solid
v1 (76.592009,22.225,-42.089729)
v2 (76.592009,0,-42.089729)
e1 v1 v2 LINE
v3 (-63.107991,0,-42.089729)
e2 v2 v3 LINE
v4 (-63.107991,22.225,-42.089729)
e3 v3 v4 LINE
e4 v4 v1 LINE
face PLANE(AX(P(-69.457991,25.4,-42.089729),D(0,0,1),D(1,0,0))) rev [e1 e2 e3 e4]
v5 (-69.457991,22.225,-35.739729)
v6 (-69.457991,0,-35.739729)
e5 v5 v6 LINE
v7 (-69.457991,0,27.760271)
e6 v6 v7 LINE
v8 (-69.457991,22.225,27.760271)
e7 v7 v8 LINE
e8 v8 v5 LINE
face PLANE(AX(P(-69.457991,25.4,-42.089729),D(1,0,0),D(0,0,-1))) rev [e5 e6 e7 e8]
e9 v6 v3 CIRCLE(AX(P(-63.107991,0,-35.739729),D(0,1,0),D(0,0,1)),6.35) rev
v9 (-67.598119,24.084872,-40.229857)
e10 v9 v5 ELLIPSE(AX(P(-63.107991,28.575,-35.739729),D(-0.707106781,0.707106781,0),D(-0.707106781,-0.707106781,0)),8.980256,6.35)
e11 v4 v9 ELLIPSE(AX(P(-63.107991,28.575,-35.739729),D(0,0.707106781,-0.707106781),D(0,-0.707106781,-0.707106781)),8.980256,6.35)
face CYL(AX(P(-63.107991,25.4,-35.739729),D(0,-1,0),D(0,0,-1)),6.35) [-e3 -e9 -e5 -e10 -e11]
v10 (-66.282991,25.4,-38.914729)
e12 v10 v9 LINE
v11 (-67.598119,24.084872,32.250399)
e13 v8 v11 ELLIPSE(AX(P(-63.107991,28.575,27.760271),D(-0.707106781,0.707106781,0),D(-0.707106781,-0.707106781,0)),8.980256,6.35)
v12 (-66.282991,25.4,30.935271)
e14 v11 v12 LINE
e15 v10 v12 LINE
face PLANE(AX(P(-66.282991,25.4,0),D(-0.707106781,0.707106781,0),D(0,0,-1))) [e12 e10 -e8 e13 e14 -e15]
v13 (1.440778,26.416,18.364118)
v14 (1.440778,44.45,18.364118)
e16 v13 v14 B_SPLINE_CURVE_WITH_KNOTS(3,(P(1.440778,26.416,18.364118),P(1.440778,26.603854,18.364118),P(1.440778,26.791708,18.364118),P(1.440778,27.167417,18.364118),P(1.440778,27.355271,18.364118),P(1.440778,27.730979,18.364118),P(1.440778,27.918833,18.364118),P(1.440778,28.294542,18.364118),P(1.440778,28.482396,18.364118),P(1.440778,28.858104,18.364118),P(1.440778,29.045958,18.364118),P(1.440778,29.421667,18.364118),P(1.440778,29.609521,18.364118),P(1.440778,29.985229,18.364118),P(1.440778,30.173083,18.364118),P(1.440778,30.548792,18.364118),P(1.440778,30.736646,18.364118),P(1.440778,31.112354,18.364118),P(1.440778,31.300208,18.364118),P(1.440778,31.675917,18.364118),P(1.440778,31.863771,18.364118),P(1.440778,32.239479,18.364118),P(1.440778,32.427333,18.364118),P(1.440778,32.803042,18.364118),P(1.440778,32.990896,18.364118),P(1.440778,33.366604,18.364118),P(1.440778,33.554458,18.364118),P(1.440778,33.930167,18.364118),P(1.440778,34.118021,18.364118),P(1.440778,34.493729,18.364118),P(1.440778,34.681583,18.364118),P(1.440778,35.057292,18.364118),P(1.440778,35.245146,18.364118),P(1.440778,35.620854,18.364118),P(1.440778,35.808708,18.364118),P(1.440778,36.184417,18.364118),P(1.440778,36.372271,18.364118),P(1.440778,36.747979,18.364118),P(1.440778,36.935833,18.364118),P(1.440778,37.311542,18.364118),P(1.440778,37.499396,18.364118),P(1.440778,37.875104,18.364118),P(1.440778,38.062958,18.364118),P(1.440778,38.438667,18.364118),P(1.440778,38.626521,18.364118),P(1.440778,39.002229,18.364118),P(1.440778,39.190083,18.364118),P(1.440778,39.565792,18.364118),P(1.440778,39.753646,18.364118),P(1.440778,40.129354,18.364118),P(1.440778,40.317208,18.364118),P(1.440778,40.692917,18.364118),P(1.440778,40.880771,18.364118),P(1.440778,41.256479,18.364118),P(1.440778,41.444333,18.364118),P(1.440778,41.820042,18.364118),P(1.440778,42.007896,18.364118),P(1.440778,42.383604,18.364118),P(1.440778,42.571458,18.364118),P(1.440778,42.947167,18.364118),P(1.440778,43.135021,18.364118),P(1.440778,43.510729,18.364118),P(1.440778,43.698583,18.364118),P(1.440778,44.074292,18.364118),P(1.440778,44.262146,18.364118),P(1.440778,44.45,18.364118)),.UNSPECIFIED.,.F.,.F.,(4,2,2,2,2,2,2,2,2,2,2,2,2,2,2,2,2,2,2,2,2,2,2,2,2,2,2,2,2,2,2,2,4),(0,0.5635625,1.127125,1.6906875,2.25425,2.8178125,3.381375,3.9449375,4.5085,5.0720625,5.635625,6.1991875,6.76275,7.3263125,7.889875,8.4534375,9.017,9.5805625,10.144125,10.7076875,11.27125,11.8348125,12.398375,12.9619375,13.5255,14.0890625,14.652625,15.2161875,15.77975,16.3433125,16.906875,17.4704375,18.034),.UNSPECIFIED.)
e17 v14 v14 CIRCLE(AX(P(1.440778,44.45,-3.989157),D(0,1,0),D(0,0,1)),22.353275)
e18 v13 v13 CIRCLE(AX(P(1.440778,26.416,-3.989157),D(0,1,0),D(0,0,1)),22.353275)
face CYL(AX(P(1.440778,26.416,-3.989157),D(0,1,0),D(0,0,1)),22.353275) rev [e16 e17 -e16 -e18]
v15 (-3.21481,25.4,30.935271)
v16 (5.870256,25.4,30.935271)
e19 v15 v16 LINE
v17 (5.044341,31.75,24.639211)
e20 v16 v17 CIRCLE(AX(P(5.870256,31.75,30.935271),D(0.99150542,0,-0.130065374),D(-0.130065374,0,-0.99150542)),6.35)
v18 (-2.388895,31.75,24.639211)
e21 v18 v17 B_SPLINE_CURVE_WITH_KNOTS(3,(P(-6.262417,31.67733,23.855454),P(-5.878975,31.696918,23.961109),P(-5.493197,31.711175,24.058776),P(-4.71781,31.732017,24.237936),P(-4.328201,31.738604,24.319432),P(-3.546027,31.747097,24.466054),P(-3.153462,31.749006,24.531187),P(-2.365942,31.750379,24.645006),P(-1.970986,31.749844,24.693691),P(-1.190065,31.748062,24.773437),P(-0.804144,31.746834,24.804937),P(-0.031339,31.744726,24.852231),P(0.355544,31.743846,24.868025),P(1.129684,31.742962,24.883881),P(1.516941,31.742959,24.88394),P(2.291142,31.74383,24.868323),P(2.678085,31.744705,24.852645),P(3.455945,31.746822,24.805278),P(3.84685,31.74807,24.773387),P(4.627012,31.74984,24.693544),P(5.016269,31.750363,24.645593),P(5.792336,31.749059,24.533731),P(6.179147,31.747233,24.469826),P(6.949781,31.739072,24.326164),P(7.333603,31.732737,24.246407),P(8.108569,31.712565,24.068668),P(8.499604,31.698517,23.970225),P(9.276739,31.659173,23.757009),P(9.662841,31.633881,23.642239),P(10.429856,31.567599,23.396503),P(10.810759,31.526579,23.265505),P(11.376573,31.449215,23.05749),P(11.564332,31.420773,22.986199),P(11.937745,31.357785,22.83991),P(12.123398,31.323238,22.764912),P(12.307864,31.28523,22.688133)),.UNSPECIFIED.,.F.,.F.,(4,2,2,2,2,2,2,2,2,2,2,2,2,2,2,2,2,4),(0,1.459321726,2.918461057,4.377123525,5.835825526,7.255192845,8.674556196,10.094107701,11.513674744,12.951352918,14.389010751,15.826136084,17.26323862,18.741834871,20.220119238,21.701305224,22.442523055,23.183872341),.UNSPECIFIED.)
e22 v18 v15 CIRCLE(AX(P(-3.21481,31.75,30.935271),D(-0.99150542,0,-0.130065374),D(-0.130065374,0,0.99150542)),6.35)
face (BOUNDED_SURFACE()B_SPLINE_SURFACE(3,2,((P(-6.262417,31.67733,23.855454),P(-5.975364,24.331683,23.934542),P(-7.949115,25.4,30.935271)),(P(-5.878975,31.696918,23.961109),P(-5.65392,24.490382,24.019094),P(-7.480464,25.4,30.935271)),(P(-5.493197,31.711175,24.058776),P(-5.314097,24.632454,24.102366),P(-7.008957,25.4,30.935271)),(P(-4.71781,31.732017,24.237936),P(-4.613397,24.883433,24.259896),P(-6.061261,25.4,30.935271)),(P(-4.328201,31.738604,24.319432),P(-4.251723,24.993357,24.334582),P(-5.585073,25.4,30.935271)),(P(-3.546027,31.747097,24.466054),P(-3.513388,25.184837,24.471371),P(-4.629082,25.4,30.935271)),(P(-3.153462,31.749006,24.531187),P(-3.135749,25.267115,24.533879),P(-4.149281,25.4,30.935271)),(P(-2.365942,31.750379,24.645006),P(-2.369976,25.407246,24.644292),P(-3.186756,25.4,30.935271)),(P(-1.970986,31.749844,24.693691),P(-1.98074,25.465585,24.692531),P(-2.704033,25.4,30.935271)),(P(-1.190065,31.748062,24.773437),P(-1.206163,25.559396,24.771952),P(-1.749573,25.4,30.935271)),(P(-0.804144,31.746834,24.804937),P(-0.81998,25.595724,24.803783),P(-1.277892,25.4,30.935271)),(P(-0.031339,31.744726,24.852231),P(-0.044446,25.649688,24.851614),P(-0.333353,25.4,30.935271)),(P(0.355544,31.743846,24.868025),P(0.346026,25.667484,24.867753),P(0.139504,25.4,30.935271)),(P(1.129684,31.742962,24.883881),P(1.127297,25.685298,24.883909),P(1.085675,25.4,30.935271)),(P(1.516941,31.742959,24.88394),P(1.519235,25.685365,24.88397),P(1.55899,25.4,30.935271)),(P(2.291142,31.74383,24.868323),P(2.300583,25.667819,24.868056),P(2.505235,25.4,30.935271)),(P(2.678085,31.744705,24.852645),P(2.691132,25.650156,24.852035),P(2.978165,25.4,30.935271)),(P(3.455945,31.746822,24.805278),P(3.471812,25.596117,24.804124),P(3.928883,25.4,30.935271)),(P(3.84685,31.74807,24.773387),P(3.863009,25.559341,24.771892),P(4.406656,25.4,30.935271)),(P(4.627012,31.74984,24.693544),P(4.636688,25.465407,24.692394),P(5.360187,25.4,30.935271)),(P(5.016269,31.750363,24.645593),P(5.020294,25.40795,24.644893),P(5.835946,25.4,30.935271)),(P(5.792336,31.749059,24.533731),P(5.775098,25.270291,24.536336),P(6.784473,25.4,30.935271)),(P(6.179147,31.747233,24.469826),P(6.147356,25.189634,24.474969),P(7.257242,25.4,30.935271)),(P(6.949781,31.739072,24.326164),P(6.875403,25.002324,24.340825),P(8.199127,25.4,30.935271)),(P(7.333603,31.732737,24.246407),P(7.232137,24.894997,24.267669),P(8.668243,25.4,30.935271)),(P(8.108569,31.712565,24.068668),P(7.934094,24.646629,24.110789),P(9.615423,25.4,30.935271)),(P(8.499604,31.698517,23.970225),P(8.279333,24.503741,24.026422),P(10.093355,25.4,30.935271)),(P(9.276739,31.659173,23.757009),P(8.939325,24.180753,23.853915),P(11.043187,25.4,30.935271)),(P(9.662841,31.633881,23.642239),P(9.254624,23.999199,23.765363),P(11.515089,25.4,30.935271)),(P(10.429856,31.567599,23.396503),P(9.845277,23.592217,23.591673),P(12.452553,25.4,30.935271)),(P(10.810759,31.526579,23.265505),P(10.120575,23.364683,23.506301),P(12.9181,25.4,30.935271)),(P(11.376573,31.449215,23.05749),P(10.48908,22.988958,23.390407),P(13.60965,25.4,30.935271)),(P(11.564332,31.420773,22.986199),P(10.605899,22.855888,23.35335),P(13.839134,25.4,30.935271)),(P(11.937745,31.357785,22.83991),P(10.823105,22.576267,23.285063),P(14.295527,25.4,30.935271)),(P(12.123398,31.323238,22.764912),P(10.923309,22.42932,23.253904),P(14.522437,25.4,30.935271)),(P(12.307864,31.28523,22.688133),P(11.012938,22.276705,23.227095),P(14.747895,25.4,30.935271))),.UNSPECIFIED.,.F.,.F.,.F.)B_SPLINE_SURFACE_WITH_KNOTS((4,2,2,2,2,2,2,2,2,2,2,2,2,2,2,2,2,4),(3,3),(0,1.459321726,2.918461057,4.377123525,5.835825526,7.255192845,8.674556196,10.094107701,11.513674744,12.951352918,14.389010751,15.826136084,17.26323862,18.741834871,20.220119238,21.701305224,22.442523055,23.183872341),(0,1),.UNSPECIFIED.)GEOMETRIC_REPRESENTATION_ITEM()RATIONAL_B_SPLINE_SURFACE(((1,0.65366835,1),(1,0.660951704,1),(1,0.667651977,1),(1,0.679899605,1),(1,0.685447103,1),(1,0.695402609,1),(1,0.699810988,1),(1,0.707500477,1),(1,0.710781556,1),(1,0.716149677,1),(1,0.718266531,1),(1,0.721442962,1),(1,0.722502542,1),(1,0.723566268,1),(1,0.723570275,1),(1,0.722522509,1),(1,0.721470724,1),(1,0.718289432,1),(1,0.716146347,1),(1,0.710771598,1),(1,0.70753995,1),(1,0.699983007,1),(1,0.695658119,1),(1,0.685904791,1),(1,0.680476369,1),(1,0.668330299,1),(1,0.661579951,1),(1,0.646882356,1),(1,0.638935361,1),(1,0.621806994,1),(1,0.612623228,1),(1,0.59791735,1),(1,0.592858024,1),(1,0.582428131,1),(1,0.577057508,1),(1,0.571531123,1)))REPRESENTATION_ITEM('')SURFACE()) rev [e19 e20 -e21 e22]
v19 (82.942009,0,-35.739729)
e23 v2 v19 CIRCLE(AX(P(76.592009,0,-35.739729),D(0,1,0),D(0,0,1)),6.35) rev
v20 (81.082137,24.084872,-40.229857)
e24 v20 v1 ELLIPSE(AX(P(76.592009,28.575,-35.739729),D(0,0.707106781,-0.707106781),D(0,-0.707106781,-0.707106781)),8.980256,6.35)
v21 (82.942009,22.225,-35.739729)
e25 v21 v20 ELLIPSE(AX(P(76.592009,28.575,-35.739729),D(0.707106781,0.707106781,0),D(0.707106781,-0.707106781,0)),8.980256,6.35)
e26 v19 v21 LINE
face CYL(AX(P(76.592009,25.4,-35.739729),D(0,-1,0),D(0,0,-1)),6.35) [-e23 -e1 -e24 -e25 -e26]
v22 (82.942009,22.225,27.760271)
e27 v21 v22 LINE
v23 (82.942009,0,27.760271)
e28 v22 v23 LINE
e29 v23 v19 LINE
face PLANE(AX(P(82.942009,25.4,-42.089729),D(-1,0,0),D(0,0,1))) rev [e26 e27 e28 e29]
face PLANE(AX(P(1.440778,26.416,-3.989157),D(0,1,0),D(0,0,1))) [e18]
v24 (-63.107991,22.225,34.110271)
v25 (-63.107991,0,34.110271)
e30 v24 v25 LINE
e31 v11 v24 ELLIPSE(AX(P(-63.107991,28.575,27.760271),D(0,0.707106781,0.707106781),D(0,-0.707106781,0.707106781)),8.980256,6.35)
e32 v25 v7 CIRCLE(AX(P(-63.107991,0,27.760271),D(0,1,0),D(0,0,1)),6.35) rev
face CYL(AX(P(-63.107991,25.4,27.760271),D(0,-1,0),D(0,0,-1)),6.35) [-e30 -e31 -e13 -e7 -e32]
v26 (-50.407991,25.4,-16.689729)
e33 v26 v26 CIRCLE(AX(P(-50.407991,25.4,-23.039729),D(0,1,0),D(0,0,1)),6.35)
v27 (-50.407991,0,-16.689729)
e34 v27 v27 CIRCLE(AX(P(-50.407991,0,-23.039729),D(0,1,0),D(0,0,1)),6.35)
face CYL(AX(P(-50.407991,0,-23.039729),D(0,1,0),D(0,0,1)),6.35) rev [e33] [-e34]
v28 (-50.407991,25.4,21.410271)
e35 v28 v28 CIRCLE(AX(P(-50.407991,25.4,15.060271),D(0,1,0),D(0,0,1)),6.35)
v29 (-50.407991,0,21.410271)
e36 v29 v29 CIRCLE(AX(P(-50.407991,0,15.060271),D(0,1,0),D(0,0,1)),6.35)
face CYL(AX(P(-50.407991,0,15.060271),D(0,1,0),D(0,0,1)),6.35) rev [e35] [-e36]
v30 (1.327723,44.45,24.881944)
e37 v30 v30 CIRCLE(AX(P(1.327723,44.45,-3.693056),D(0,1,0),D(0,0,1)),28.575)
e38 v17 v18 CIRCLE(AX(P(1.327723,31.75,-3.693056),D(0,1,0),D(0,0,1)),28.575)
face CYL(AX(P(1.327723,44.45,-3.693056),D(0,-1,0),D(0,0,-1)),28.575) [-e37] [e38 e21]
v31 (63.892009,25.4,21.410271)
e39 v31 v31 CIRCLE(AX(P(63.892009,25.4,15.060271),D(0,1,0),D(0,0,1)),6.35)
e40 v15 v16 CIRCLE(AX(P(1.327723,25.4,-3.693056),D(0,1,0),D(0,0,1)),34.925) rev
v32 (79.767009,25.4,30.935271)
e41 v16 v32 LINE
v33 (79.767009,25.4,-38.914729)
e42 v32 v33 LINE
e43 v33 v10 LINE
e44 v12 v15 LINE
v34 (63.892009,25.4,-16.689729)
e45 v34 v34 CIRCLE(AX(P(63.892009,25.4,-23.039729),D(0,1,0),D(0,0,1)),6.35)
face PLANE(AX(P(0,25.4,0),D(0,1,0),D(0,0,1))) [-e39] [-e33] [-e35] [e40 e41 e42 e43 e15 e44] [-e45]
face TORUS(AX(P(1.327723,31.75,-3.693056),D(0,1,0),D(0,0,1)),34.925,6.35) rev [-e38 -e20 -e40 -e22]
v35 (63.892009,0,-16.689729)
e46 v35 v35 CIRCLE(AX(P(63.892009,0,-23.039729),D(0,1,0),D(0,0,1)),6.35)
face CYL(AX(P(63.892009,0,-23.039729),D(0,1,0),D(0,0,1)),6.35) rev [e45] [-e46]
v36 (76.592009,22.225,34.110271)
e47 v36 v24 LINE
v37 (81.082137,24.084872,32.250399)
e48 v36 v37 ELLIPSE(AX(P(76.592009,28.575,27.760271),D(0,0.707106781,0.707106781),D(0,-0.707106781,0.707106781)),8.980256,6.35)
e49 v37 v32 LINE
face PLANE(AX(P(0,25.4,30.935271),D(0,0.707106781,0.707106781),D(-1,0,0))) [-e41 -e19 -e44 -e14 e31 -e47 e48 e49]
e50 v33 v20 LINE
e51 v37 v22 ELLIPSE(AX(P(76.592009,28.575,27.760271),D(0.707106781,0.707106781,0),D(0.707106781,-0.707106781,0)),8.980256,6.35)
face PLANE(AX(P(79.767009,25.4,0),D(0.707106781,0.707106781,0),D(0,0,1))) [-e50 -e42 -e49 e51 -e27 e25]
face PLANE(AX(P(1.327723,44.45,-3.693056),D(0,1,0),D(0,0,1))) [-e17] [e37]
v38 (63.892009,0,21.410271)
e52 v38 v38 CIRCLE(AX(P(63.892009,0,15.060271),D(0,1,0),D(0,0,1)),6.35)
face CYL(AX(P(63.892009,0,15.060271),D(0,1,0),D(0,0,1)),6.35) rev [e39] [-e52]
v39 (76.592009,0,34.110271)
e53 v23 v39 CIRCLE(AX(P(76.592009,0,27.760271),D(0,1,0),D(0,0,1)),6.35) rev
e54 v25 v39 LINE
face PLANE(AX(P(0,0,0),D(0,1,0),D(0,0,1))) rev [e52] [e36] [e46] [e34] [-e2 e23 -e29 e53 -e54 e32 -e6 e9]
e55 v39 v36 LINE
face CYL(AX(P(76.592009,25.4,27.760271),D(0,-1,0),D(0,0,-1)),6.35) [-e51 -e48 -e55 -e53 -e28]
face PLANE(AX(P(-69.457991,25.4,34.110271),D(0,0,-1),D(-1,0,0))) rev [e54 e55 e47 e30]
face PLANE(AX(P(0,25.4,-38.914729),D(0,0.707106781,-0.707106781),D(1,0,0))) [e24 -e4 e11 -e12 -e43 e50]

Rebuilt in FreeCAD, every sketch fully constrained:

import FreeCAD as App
import Part
import Sketcher
from FreeCAD import Vector
Q = App.Units.Quantity


def edges_at(feature, points):
    """Names of the edges that pass closest to the given points."""
    edges = feature.Shape.Edges
    near = lambda p: min(range(len(edges)), key=lambda i: edges[i].distToShape(Part.Vertex(*p))[0])
    return sorted({f"Edge{near(p) + 1}" for p in points})


def add_polygon(sketch, points):
    """Adds a closed chain of lines whose ends are joined by coincident constraints."""
    first, n = sketch.GeometryCount, len(points)
    for a, b in zip(points, points[1:] + points[:1]):
        sketch.addGeometry(Part.LineSegment(App.Vector(*a, 0), App.Vector(*b, 0)), False)
    for i in range(n):
        sketch.addConstraint(Sketcher.Constraint("Coincident", first + i, 2, first + (i + 1) % n, 1))

doc = App.newDocument("Part")
body = doc.addObject("PartDesign::Body", "Body")

sketch1 = body.newObject("Sketcher::SketchObject", "Sketch")
sketch1.AttachmentSupport = (doc.getObject("XZ_Plane"), [""])
sketch1.MapMode = "FlatFace"
add_polygon(sketch1, [(-69, -42), (-69, 34), (83, 34), (83, -42)])
sketch1.addConstraint([
    Sketcher.Constraint("Vertical", 0),
    Sketcher.Constraint("Horizontal", 1),
    Sketcher.Constraint("Vertical", 2),
    Sketcher.Constraint("Horizontal", 3),
    Sketcher.Constraint("DistanceX", 1, 1, 1, 2, Q("6 in")),
    Sketcher.Constraint("DistanceY", 0, 1, 0, 2, Q("3 in")),
    Sketcher.Constraint("DistanceX", 0, 2, -1, 1, 69.457991),
    Sketcher.Constraint("DistanceY", -1, 1, 0, 2, 34.110271),
])
pad1 = body.newObject("PartDesign::Pad", "Pad")
pad1.Profile = sketch1
pad1.Length = Q("1 in")
pad1.Reversed = True

sketch2 = body.newObject("Sketcher::SketchObject", "Sketch001")
sketch2.AttachmentSupport = (doc.getObject("XZ_Plane"), [""])
sketch2.MapMode = "FlatFace"
sketch2.AttachmentOffset = App.Placement(Vector(0, 0, -1 * 25.4), App.Rotation())
sketch2.addGeometry([
    Part.Circle(Vector(-50, -23, 0), Vector(0, 0, 1), 6),
    Part.Circle(Vector(-50, 15, 0), Vector(0, 0, 1), 6),
    Part.Circle(Vector(64, -23, 0), Vector(0, 0, 1), 6),
    Part.Circle(Vector(64, 15, 0), Vector(0, 0, 1), 6),
], False)
sketch2.addConstraint([
    Sketcher.Constraint("Equal", 0, 1),
    Sketcher.Constraint("Equal", 1, 2),
    Sketcher.Constraint("Equal", 2, 3),
    Sketcher.Constraint("Horizontal", 0, 3, 2, 3),
    Sketcher.Constraint("Horizontal", 1, 3, 3, 3),
    Sketcher.Constraint("Vertical", 0, 3, 1, 3),
    Sketcher.Constraint("Vertical", 2, 3, 3, 3),
    Sketcher.Constraint("Diameter", 0, Q("0.5 in")),
    Sketcher.Constraint("DistanceY", 0, 3, 1, 3, Q("1.5 in")),
    Sketcher.Constraint("DistanceX", 0, 3, 2, 3, Q("4.5 in")),
    Sketcher.Constraint("DistanceX", 0, 3, -1, 1, 50.407991),
    Sketcher.Constraint("DistanceY", 0, 3, -1, 1, 23.039729),
])
pocket1 = body.newObject("PartDesign::Pocket", "Pocket")
pocket1.Profile = sketch2
pocket1.Type = "ThroughAll"
pocket1.Reversed = True

sketch3 = body.newObject("Sketcher::SketchObject", "Sketch002")
sketch3.AttachmentSupport = (doc.getObject("XZ_Plane"), [""])
sketch3.MapMode = "FlatFace"
sketch3.AttachmentOffset = App.Placement(Vector(0, 0, -1 * 25.4), App.Rotation())
sketch3.addGeometry(Part.Circle(Vector(1, -4, 0), Vector(0, 0, 1), 29), False)
sketch3.addConstraint([
    Sketcher.Constraint("Diameter", 0, Q("2.25 in")),
    Sketcher.Constraint("DistanceX", -1, 1, 0, 3, 1.327723),
    Sketcher.Constraint("DistanceY", 0, 3, -1, 1, 3.693056),
])
pad2 = body.newObject("PartDesign::Pad", "Pad001")
pad2.Profile = sketch3
pad2.Length = Q("0.75 in")
pad2.Reversed = True

sketch4 = body.newObject("Sketcher::SketchObject", "Sketch003")
sketch4.AttachmentSupport = (doc.getObject("XZ_Plane"), [""])
sketch4.MapMode = "FlatFace"
sketch4.AttachmentOffset = App.Placement(Vector(0, 0, -1.75 * 25.4), App.Rotation())
sketch4.addGeometry(Part.Circle(Vector(1, -4, 0), Vector(0, 0, 1), 22), False)
sketch4.addConstraint([
    Sketcher.Constraint("Diameter", 0, 44.70655),
    Sketcher.Constraint("DistanceX", -1, 1, 0, 3, 1.440778),
    Sketcher.Constraint("DistanceY", 0, 3, -1, 1, 3.989157),
])
pocket2 = body.newObject("PartDesign::Pocket", "Pocket001")
pocket2.Profile = sketch4
pocket2.Length = Q("0.71 in")
pocket2.Reversed = True
doc.recompute()

chamfer = body.newObject("PartDesign::Chamfer", "Chamfer")
chamfer.Base = (pocket2, edges_at(pocket2, [
    (82.942, 25.4, -3.99),
    (6.742, 25.4, -42.09),
    (-69.458, 25.4, -3.99),
    (6.742, 25.4, 34.11),
]))
chamfer.Size = Q("0.125 in")
doc.recompute()

fillet = body.newObject("PartDesign::Fillet", "Fillet")
fillet.Base = (chamfer, edges_at(chamfer, [
    (1.328, 25.4, 24.882),
    (-69.458, 11.113, 34.11),
    (-69.458, 11.113, -42.09),
    (82.942, 11.113, -42.09),
    (82.942, 11.113, 34.11),
]))
fillet.Radius = Q("0.25 in")

doc.recompute()
